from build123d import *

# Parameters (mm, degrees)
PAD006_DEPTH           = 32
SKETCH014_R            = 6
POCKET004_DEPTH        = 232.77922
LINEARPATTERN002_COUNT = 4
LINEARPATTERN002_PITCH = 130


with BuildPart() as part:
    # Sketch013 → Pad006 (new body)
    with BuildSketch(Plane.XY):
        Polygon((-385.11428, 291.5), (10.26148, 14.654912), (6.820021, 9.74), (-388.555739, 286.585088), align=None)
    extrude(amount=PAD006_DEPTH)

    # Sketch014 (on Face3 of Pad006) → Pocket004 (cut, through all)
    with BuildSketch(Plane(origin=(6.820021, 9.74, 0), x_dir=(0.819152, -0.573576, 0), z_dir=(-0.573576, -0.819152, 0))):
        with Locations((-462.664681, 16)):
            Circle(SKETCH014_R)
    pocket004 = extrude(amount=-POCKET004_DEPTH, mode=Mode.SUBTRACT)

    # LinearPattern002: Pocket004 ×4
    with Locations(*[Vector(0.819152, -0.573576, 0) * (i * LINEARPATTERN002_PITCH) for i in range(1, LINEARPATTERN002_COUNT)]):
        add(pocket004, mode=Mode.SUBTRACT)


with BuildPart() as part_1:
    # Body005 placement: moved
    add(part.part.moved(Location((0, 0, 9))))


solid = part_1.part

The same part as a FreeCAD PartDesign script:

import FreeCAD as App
import Part
import Sketcher

V = App.Vector
Q = App.Units.Quantity


def add_polygon(sketch, points):
    """Adds a closed chain of lines whose ends are joined by coincident constraints."""
    first, n = sketch.GeometryCount, len(points)
    for a, b in zip(points, points[1:] + points[:1]):
        sketch.addGeometry(Part.LineSegment(App.Vector(*a, 0), App.Vector(*b, 0)), False)
    for i in range(n):
        sketch.addConstraint(Sketcher.Constraint("Coincident", first + i, 2, first + (i + 1) % n, 1))

doc = App.newDocument("Part")
params = doc.addObject("Spreadsheet::Sheet", "Params")
for row, (alias, value) in enumerate([
    ("sketch1_length", "6 mm"),
    ("pad1_length", "32 mm"),
    ("sketch2_diameter", "12 mm"),
    ("linearpattern_pitch", "129.999963 mm"),
], start=1):
    params.set(f"A{row}", alias)
    params.set(f"B{row}", "=" + value)
    params.setAlias(f"B{row}", alias)

body = doc.addObject("PartDesign::Body", "Body")

# Sketch on XY plane
sketch1 = body.newObject("Sketcher::SketchObject", "Sketch")
sketch1.AttachmentSupport = (doc.getObject("XY_Plane"), [""])
sketch1.MapMode = "FlatFace"
add_polygon(sketch1, [(10, 15), (-385, 292), (-389, 287), (7, 10)])  # lines 0-3
sketch1.addConstraint(Sketcher.Constraint("Perpendicular", 0, 1))
sketch1.addConstraint(Sketcher.Constraint("Perpendicular", 1, 2))
sketch1.addConstraint(Sketcher.Constraint("Perpendicular", 2, 3))
sketch1.addConstraint(Sketcher.Constraint("Angle", 0, Q("145 deg")))
sketch1.addConstraint(Sketcher.Constraint("Distance", 1, 6.0))
sketch1.addConstraint(Sketcher.Constraint("DistanceY", -1, 1, 0, 2, 291.5))
sketch1.addConstraint(Sketcher.Constraint("DistanceY", -1, 1, 2, 2, 9.74))
sketch1.addConstraint(Sketcher.Constraint("DistanceX", 0, 2, -1, 1, 385.11428))
sketch1.setExpression("Constraints[8]", "Params.sketch1_length")
pad1 = body.newObject("PartDesign::Pad", "Pad")
pad1.Profile = sketch1
pad1.setExpression("Length", "Params.pad1_length")

# Sketch on an angled plane
sketch2 = body.newObject("Sketcher::SketchObject", "Sketch001")
sketch2.Placement = App.Placement(V(6.820021, 9.74, 0), App.Rotation(V(0.819152235, -0.573576164, 0), V(0, 0, 1), V(-0.573576164, -0.819152235, 0), "ZXY"))
sketch2.addGeometry(Part.Circle(V(-463, 16, 0), V(0, 0, 1), 6), False)
sketch2.addConstraint(Sketcher.Constraint("Diameter", 0, 12.0))
sketch2.addConstraint(Sketcher.Constraint("DistanceY", -1, 1, 0, 3, 16.0))
sketch2.addConstraint(Sketcher.Constraint("DistanceX", 0, 3, -1, 1, 462.664681))
sketch2.setExpression("Constraints[0]", "Params.sketch2_diameter")
pocket1 = body.newObject("PartDesign::Pocket", "Pocket")
pocket1.Profile = sketch2
pocket1.Type = "ThroughAll"
doc.recompute()

datumline = body.newObject("PartDesign::Line", "DatumLine")
datumline.Placement = App.Placement(V(0, 0, 0), App.Rotation(V(0, 0, 1), V(0.819152235, -0.573576164, 0)))
linearpattern = body.newObject("PartDesign::LinearPattern", "LinearPattern")
linearpattern.Originals = [pocket1]
linearpattern.Direction = (datumline, [""])
linearpattern.Mode = "offset"
linearpattern.setExpression("Offset", "Params.linearpattern_pitch")
linearpattern.Occurrences = 4
body.Tip = linearpattern
body2 = doc.addObject("PartDesign::Body", "Body001")
doc.recompute()

body.Placement = App.Placement(V(0, 0, 9), App.Rotation(V(0, 0, 1), 0))
boolean = body2.newObject("PartDesign::Boolean", "Boolean")
boolean.Type = "Fuse"
boolean.addObjects([body])

doc.recompute()
